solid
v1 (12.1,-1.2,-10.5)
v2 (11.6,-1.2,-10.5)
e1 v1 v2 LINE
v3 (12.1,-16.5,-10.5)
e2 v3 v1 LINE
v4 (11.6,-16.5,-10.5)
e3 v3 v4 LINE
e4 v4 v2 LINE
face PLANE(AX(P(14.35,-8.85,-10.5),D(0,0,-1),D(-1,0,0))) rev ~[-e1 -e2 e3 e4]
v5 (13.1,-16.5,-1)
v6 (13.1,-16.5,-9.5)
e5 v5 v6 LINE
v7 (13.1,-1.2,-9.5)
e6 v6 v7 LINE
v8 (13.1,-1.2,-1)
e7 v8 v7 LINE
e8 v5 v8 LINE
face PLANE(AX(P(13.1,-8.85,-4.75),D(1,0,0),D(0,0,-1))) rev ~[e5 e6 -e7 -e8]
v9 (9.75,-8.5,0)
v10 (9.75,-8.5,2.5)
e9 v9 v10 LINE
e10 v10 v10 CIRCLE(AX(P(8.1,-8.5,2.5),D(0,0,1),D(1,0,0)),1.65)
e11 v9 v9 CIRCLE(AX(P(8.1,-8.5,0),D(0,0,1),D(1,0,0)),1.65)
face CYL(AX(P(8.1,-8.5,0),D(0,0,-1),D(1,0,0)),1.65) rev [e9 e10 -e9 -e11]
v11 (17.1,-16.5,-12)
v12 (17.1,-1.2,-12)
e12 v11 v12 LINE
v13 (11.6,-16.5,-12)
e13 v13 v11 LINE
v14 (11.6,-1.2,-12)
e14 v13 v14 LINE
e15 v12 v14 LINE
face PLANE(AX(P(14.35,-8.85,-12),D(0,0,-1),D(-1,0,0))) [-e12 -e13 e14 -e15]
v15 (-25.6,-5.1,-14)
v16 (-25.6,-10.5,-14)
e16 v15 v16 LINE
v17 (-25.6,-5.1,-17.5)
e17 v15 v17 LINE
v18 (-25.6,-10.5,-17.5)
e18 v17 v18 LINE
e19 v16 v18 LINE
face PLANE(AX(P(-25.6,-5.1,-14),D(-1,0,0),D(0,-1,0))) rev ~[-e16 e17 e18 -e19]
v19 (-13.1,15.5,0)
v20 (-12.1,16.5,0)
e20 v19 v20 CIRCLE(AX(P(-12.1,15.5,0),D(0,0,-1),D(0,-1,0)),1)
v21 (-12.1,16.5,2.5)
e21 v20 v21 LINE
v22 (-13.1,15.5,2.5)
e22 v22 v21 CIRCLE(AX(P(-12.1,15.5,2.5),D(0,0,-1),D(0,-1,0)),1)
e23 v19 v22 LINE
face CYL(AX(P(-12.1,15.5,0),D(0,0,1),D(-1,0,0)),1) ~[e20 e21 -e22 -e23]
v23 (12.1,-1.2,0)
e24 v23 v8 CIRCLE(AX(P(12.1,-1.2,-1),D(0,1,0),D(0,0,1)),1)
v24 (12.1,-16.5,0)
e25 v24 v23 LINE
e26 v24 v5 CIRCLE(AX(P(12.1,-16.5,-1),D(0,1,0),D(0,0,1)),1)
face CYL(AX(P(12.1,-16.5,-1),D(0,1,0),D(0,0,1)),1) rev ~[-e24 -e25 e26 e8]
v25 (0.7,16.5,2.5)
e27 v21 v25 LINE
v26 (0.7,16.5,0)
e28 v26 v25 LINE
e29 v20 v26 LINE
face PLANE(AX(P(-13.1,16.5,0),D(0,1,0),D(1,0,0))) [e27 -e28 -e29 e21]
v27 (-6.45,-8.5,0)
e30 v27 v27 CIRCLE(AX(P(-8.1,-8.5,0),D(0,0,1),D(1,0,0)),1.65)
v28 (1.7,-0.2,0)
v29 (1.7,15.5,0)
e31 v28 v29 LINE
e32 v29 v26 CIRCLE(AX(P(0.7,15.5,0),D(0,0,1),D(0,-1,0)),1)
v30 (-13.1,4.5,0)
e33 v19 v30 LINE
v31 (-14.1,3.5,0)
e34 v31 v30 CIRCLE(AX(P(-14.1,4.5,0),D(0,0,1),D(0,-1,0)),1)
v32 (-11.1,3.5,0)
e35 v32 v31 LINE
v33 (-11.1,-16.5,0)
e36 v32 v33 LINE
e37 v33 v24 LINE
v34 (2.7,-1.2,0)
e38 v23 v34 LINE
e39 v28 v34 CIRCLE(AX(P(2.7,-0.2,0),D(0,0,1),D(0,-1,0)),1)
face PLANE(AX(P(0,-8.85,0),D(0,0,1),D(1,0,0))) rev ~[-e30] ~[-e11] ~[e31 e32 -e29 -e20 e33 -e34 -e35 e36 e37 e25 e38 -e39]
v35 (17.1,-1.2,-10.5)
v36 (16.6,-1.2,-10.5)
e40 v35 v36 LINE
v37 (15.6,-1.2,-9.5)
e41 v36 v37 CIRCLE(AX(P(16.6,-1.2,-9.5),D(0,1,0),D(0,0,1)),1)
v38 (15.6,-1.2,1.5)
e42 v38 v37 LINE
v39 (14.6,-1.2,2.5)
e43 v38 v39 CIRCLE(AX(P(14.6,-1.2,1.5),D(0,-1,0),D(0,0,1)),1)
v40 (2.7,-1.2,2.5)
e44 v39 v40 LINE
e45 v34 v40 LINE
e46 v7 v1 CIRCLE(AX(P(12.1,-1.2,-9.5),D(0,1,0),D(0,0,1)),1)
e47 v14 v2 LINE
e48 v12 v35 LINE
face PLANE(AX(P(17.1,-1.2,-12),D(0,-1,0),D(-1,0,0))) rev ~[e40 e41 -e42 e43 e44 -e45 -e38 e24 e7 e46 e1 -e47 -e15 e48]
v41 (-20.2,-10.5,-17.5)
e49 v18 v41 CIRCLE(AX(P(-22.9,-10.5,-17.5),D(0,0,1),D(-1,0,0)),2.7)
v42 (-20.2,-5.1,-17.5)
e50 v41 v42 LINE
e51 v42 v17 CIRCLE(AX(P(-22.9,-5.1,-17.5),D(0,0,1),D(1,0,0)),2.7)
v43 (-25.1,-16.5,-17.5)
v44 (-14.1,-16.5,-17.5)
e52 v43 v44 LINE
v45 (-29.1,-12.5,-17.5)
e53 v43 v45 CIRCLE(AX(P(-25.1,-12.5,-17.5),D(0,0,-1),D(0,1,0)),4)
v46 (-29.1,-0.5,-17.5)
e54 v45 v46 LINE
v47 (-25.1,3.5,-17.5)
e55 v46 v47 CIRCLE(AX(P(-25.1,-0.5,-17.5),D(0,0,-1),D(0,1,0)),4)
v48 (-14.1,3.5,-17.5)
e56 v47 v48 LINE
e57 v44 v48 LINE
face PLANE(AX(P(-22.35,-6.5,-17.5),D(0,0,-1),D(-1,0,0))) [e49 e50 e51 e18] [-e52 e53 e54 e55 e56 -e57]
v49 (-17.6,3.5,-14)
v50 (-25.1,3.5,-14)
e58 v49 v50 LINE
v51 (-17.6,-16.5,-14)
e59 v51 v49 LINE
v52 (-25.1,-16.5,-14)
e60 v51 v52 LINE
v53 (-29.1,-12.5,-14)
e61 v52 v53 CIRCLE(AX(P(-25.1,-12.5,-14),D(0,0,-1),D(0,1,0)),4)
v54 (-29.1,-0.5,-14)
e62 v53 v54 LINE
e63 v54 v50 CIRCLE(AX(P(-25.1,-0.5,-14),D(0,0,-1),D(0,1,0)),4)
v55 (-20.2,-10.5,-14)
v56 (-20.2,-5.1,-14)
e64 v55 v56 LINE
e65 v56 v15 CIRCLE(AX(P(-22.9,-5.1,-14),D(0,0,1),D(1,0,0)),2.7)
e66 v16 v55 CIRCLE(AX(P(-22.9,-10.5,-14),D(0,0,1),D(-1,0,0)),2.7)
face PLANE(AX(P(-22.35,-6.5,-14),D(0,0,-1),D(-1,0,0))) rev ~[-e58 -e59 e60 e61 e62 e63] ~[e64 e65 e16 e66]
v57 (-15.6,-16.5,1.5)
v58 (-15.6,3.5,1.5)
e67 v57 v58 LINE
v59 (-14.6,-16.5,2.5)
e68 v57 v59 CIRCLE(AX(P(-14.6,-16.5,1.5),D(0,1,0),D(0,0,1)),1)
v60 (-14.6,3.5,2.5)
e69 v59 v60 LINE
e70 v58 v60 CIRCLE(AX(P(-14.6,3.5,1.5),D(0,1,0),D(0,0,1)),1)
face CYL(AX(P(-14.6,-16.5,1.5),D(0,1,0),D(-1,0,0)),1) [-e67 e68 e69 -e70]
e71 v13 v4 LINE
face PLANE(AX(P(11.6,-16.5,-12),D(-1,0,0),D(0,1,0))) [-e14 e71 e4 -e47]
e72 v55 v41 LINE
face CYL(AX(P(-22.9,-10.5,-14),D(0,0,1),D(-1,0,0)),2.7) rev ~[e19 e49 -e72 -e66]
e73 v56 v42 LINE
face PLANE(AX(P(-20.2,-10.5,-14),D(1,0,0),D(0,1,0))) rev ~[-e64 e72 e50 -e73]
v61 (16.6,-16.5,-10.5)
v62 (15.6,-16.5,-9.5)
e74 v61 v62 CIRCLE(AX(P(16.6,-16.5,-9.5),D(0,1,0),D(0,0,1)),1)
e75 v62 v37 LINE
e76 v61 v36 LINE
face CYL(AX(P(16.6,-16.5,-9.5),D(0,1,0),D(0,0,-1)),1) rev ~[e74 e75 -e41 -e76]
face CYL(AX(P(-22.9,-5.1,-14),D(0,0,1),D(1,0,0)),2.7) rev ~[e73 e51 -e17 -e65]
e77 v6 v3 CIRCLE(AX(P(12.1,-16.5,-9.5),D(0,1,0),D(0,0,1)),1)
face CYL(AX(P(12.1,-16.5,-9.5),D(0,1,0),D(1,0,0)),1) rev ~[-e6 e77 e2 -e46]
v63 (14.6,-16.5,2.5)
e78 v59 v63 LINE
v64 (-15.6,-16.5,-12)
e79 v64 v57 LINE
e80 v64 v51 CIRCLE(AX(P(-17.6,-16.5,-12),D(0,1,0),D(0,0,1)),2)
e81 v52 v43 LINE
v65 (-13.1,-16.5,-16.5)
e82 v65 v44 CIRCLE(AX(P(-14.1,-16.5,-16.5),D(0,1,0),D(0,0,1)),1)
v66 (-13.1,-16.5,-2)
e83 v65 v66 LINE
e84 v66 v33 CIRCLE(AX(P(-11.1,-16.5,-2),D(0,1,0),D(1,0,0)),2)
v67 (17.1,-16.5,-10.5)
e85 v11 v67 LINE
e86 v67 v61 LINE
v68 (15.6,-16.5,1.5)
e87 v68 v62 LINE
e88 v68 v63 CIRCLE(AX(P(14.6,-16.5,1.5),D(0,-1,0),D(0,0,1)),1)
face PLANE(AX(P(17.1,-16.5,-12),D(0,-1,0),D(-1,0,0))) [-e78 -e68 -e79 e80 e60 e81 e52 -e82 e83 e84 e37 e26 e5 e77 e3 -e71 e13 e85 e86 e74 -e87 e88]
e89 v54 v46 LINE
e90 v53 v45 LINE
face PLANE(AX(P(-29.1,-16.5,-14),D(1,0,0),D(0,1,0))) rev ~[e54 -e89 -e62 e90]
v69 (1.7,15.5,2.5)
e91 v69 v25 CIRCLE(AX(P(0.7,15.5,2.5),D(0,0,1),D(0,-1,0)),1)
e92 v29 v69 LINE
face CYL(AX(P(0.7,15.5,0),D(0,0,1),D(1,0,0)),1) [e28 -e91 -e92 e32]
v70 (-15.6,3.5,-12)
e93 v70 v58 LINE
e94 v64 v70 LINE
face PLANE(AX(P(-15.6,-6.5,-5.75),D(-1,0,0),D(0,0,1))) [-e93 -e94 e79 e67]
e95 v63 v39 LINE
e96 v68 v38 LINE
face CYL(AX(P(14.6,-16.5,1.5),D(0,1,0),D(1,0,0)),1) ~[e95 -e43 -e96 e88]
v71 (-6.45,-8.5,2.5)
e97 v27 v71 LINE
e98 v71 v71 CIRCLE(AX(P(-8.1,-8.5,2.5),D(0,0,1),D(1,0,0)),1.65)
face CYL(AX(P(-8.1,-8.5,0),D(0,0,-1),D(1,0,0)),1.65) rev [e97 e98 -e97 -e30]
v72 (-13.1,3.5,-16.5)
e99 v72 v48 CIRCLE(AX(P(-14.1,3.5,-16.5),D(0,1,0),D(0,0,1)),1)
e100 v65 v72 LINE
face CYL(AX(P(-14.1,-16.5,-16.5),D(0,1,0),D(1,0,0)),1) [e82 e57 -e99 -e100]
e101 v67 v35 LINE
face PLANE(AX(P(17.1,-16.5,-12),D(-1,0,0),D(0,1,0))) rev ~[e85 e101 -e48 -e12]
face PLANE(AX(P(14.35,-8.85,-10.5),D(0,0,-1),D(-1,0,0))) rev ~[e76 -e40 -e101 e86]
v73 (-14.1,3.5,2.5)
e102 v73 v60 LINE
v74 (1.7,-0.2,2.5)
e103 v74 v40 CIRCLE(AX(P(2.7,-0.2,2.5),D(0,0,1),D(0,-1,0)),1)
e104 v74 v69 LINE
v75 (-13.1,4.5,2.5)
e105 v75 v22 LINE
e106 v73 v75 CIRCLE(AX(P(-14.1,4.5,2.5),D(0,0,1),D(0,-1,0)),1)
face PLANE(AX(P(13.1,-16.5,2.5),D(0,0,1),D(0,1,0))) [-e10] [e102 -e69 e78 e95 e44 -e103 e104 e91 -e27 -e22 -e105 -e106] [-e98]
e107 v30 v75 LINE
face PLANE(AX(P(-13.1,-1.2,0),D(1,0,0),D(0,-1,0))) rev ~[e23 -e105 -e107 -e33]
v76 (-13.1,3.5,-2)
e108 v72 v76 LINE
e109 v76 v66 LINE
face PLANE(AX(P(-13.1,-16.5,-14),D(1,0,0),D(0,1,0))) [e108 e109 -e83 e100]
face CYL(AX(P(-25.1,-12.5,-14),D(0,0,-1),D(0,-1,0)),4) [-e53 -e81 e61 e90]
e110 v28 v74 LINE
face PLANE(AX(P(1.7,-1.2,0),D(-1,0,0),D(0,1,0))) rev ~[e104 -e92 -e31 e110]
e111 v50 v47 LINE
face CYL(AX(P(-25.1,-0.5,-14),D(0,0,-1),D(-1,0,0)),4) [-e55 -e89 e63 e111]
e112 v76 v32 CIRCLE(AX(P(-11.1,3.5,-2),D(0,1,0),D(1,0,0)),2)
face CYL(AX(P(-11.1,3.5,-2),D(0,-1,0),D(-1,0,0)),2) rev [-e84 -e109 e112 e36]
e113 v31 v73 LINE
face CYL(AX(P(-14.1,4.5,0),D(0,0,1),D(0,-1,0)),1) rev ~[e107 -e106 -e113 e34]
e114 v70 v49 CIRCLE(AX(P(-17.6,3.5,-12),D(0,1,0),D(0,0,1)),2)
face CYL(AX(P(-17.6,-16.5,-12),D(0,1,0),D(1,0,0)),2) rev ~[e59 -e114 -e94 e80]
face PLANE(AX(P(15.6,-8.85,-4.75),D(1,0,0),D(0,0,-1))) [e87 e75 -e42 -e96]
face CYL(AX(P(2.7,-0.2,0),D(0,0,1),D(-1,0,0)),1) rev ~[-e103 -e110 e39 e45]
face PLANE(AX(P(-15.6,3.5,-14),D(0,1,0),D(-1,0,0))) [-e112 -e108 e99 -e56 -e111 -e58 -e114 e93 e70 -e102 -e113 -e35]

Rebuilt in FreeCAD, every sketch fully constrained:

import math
import FreeCAD as App
import Part
import Sketcher
from FreeCAD import Vector
Q = App.Units.Quantity


def edges_at(feature, points):
    """Names of the edges that pass closest to the given points."""
    edges = feature.Shape.Edges
    near = lambda p: min(range(len(edges)), key=lambda i: edges[i].distToShape(Part.Vertex(*p))[0])
    return sorted({f"Edge{near(p) + 1}" for p in points})


def add_polygon(sketch, points):
    """Adds a closed chain of lines whose ends are joined by coincident constraints."""
    first, n = sketch.GeometryCount, len(points)
    for a, b in zip(points, points[1:] + points[:1]):
        sketch.addGeometry(Part.LineSegment(App.Vector(*a, 0), App.Vector(*b, 0)), False)
    for i in range(n):
        sketch.addConstraint(Sketcher.Constraint("Coincident", first + i, 2, first + (i + 1) % n, 1))

doc = App.newDocument("Part")
params = doc.addObject("Spreadsheet::Sheet", "Params")
for row, (alias, value) in enumerate([
    ("sketch1_diameter", "3.3 mm"),
    ("sketch1_height", "33 mm"),
    ("sketch1_width", "26.2 mm"),
    ("sketch1_width2", "11.4 mm"),
    ("sketch1_height2", "15.3 mm"),
    ("pad1_length", "2.5 mm"),
    ("fillet_radius", "1 mm"),
    ("sketch2_width", "20 mm"),
    ("sketch2_height", "16.5 mm"),
    ("pad2_length", "2.5 mm"),
    ("sketch3_radius", "2.7 mm"),
    ("sketch3_width", "16 mm"),
    ("sketch3_height", "20 mm"),
    ("sketch3_height2", "5.4 mm"),
    ("pad3_length", "3.5 mm"),
    ("fillet2_radius", "2 mm"),
    ("fillet3_radius", "1 mm"),
    ("sketch4_width", "15.3 mm"),
    ("sketch4_height", "14.5 mm"),
    ("pad4_length", "2.5 mm"),
    ("sketch5_width", "5.5 mm"),
    ("sketch5_height", "15.3 mm"),
    ("pad5_length", "1.5 mm"),
    ("fillet4_radius", "1 mm"),
    ("fillet5_radius", "4 mm"),
], start=1):
    params.set(f"A{row}", alias)
    params.set(f"B{row}", "=" + value)
    params.setAlias(f"B{row}", alias)

body = doc.addObject("PartDesign::Body", "Body")

# Sketch on XY plane
sketch1 = doc.addObject("Sketcher::SketchObject", "Sketch")
body.addObject(sketch1)
sketch1.AttachmentSupport = (doc.XY_Plane, [""])
sketch1.MapMode = "FlatFace"
add_polygon(sketch1, [(-13.1, 16.5), (-13.1, -16.5), (13.1, -16.5), (13.1, -1.2), (1.7, -1.2), (1.7, 16.5)])  # lines 0-5
sketch1.addGeometry(Part.Circle(Vector(8.1, -8.5, 0), Vector(0, 0, 1), 1.6), False)  # 6
sketch1.addGeometry(Part.Circle(Vector(-8.1, -8.5, 0), Vector(0, 0, 1), 1.6), False)  # 7
sketch1.addConstraint(Sketcher.Constraint("Vertical", 0))
sketch1.addConstraint(Sketcher.Constraint("Horizontal", 1))
sketch1.addConstraint(Sketcher.Constraint("Vertical", 2))
sketch1.addConstraint(Sketcher.Constraint("Horizontal", 3))
sketch1.addConstraint(Sketcher.Constraint("Vertical", 4))
sketch1.addConstraint(Sketcher.Constraint("Horizontal", 5))
sketch1.addConstraint(Sketcher.Constraint("Equal", 6, 7))
sketch1.addConstraint(Sketcher.Constraint("Symmetric", 1, 2, 5, 2, -1, 1))
sketch1.addConstraint(Sketcher.Constraint("Symmetric", 6, 3, 7, 3, -2))
sketch1.addConstraint(Sketcher.Constraint("Diameter", 6, Q("3.3 mm")))
sketch1.addConstraint(Sketcher.Constraint("DistanceY", 0, 2, 0, 1, Q("33 mm")))
sketch1.addConstraint(Sketcher.Constraint("DistanceX", 1, 1, 1, 2, Q("26.2 mm")))
sketch1.addConstraint(Sketcher.Constraint("DistanceX", 3, 2, 3, 1, Q("11.4 mm")))
sketch1.addConstraint(Sketcher.Constraint("DistanceY", 2, 1, 2, 2, Q("15.3 mm")))
sketch1.addConstraint(Sketcher.Constraint("DistanceX", 0, 2, 7, 3, Q("5 mm")))
sketch1.addConstraint(Sketcher.Constraint("DistanceY", 0, 2, 7, 3, Q("8 mm")))
sketch1.setExpression("Constraints[15]", "Params.sketch1_diameter")
sketch1.setExpression("Constraints[16]", "Params.sketch1_height")
sketch1.setExpression("Constraints[17]", "Params.sketch1_width")
sketch1.setExpression("Constraints[18]", "Params.sketch1_width2")
sketch1.setExpression("Constraints[19]", "Params.sketch1_height2")
pad1 = doc.addObject("PartDesign::Pad", "Pad")
body.addObject(pad1)
pad1.Profile = sketch1
pad1.setExpression("Length", "Params.pad1_length")
doc.recompute()

fillet = doc.addObject("PartDesign::Fillet", "Fillet")
body.addObject(fillet)
fillet.Base = (pad1, edges_at(pad1, [(1.7, 16.5, 1.25), (-13.1, 16.5, 1.25)]))
fillet.setExpression("Radius", "Params.fillet_radius")

# Sketch on YZ plane
sketch2 = doc.addObject("Sketcher::SketchObject", "Sketch001")
body.addObject(sketch2)
sketch2.AttachmentSupport = (doc.YZ_Plane, [""])
sketch2.MapMode = "FlatFace"
sketch2.AttachmentOffset = App.Placement(Vector(0, 0, -13.1), App.Rotation())
add_polygon(sketch2, [(4, -14), (-16, -14), (-16, 2), (4, 2)])  # lines 0-3
sketch2.addConstraint(Sketcher.Constraint("Horizontal", 0))
sketch2.addConstraint(Sketcher.Constraint("Vertical", 1))
sketch2.addConstraint(Sketcher.Constraint("Horizontal", 2))
sketch2.addConstraint(Sketcher.Constraint("Vertical", 3))
sketch2.addConstraint(Sketcher.Constraint("DistanceX", 0, 2, 0, 1, Q("20 mm")))
sketch2.addConstraint(Sketcher.Constraint("DistanceY", 1, 1, 1, 2, Q("16.5 mm")))
sketch2.addConstraint(Sketcher.Constraint("DistanceY", 0, 2, -1, 1, Q("14 mm")))
sketch2.addConstraint(Sketcher.Constraint("DistanceX", 0, 2, -1, 1, Q("16.5 mm")))
sketch2.setExpression("Constraints[8]", "Params.sketch2_width")
sketch2.setExpression("Constraints[9]", "Params.sketch2_height")
pad2 = doc.addObject("PartDesign::Pad", "Pad001")
body.addObject(pad2)
pad2.Profile = sketch2
pad2.setExpression("Length", "Params.pad2_length")
pad2.Reversed = True

# Sketch on XY plane
sketch3 = doc.addObject("Sketcher::SketchObject", "Sketch002")
body.addObject(sketch3)
sketch3.AttachmentSupport = (doc.XY_Plane, [""])
sketch3.MapMode = "FlatFace"
sketch3.AttachmentOffset = App.Placement(Vector(0, 0, -14), App.Rotation())
add_polygon(sketch3, [(-29.1, -16.5), (-29.1, 3.5), (-13.1, 3.5), (-13.1, -16.5)])  # lines 0-3
sketch3.addGeometry(Part.LineSegment(Vector(-20.2, -10.5, 0), Vector(-20.2, -5.1, 0)), False)  # 4
sketch3.addGeometry(Part.ArcOfCircle(Part.Circle(Vector(-22.9, -5.1, 0), Vector(0, 0, 1), 2.7), math.radians(0), math.radians(180)), False)  # 5
sketch3.addGeometry(Part.LineSegment(Vector(-25.6, -5.1, 0), Vector(-25.6, -10.5, 0)), False)  # 6
sketch3.addGeometry(Part.ArcOfCircle(Part.Circle(Vector(-22.9, -10.5, 0), Vector(0, 0, 1), 2.7), math.radians(180), math.radians(360)), False)  # 7
sketch3.addConstraint(Sketcher.Constraint("Tangent", 4, 2, 5, 1))
sketch3.addConstraint(Sketcher.Constraint("Tangent", 5, 2, 6, 1))
sketch3.addConstraint(Sketcher.Constraint("Tangent", 6, 2, 7, 1))
sketch3.addConstraint(Sketcher.Constraint("Tangent", 7, 2, 4, 1))
sketch3.addConstraint(Sketcher.Constraint("Vertical", 0))
sketch3.addConstraint(Sketcher.Constraint("Horizontal", 1))
sketch3.addConstraint(Sketcher.Constraint("Vertical", 2))
sketch3.addConstraint(Sketcher.Constraint("Horizontal", 3))
sketch3.addConstraint(Sketcher.Constraint("Vertical", 4))
sketch3.addConstraint(Sketcher.Constraint("Vertical", 6))
sketch3.addConstraint(Sketcher.Constraint("Radius", 5, Q("2.7 mm")))
sketch3.addConstraint(Sketcher.Constraint("DistanceX", 1, 1, 1, 2, Q("16 mm")))
sketch3.addConstraint(Sketcher.Constraint("DistanceY", 0, 1, 0, 2, Q("20 mm")))
sketch3.addConstraint(Sketcher.Constraint("DistanceY", 4, 1, 4, 2, Q("5.4 mm")))
sketch3.addConstraint(Sketcher.Constraint("DistanceY", 7, 3, 0, 2, Q("14 mm")))
sketch3.addConstraint(Sketcher.Constraint("DistanceX", 5, 3, -1, 1, Q("22.9 mm")))
sketch3.addConstraint(Sketcher.Constraint("DistanceY", 5, 3, -1, 1, Q("5.1 mm")))
sketch3.addConstraint(Sketcher.Constraint("DistanceX", 0, 2, -1, 1, Q("29.1 mm")))
sketch3.setExpression("Constraints[14]", "Params.sketch3_radius")
sketch3.setExpression("Constraints[15]", "Params.sketch3_width")
sketch3.setExpression("Constraints[16]", "Params.sketch3_height")
sketch3.setExpression("Constraints[17]", "Params.sketch3_height2")
pad3 = doc.addObject("PartDesign::Pad", "Pad002")
body.addObject(pad3)
pad3.Profile = sketch3
pad3.setExpression("Length", "Params.pad3_length")
pad3.Reversed = True
doc.recompute()

fillet2 = doc.addObject("PartDesign::Fillet", "Fillet001")
body.addObject(fillet2)
fillet2.Base = (pad3, edges_at(pad3, [(-13.1, -6.5, 0), (-15.6, -6.5, -14)]))
fillet2.setExpression("Radius", "Params.fillet2_radius")
doc.recompute()

fillet3 = doc.addObject("PartDesign::Fillet", "Fillet002")
body.addObject(fillet3)
fillet3.Base = (fillet2, edges_at(fillet2, [(-13.1, 3.5, 1.25), (-15.6, -6.5, 2.5)]))
fillet3.setExpression("Radius", "Params.fillet3_radius")

# Sketch on YZ plane
sketch4 = doc.addObject("Sketcher::SketchObject", "Sketch003")
body.addObject(sketch4)
sketch4.AttachmentSupport = (doc.YZ_Plane, [""])
sketch4.MapMode = "FlatFace"
sketch4.AttachmentOffset = App.Placement(Vector(0, 0, 13.1), App.Rotation())
add_polygon(sketch4, [(-1, 2), (-16, 2), (-16, -12), (-1, -12)])  # lines 0-3
sketch4.addConstraint(Sketcher.Constraint("Horizontal", 0))
sketch4.addConstraint(Sketcher.Constraint("Vertical", 1))
sketch4.addConstraint(Sketcher.Constraint("Horizontal", 2))
sketch4.addConstraint(Sketcher.Constraint("Vertical", 3))
sketch4.addConstraint(Sketcher.Constraint("DistanceX", 0, 2, 0, 1, Q("15.3 mm")))
sketch4.addConstraint(Sketcher.Constraint("DistanceY", 1, 2, 1, 1, Q("14.5 mm")))
sketch4.addConstraint(Sketcher.Constraint("DistanceY", 1, 2, -1, 1, Q("12 mm")))
sketch4.addConstraint(Sketcher.Constraint("DistanceX", 0, 2, -1, 1, Q("16.5 mm")))
sketch4.setExpression("Constraints[8]", "Params.sketch4_width")
sketch4.setExpression("Constraints[9]", "Params.sketch4_height")
pad4 = doc.addObject("PartDesign::Pad", "Pad003")
body.addObject(pad4)
pad4.Profile = sketch4
pad4.setExpression("Length", "Params.pad4_length")

# Sketch on XY plane
sketch5 = doc.addObject("Sketcher::SketchObject", "Sketch004")
body.addObject(sketch5)
sketch5.AttachmentSupport = (doc.XY_Plane, [""])
sketch5.MapMode = "FlatFace"
sketch5.AttachmentOffset = App.Placement(Vector(0, 0, -12), App.Rotation())
add_polygon(sketch5, [(17, -1), (17, -16), (12, -16), (12, -1)])  # lines 0-3
sketch5.addConstraint(Sketcher.Constraint("Vertical", 0))
sketch5.addConstraint(Sketcher.Constraint("Horizontal", 1))
sketch5.addConstraint(Sketcher.Constraint("Vertical", 2))
sketch5.addConstraint(Sketcher.Constraint("Horizontal", 3))
sketch5.addConstraint(Sketcher.Constraint("DistanceX", 1, 2, 1, 1, Q("5.5 mm")))
sketch5.addConstraint(Sketcher.Constraint("DistanceY", 0, 2, 0, 1, Q("15.3 mm")))
sketch5.addConstraint(Sketcher.Constraint("DistanceX", -1, 1, 0, 2, Q("17.1 mm")))
sketch5.addConstraint(Sketcher.Constraint("DistanceY", 0, 2, -1, 1, Q("16.5 mm")))
sketch5.setExpression("Constraints[8]", "Params.sketch5_width")
sketch5.setExpression("Constraints[9]", "Params.sketch5_height")
pad5 = doc.addObject("PartDesign::Pad", "Pad004")
body.addObject(pad5)
pad5.Profile = sketch5
pad5.setExpression("Length", "Params.pad5_length")
doc.recompute()

fillet4 = doc.addObject("PartDesign::Fillet", "Fillet003")
body.addObject(fillet4)
fillet4.Base = (pad5, edges_at(pad5, [
    (13.1, -8.85, 0),
    (15.6, -8.85, 2.5),
    (15.6, -8.85, -10.5),
    (13.1, -8.85, -10.5),
    (1.7, -1.2, 1.25),
    (-13.1, -6.5, -17.5),
]))
fillet4.setExpression("Radius", "Params.fillet4_radius")
doc.recompute()

fillet5 = doc.addObject("PartDesign::Fillet", "Fillet004")
body.addObject(fillet5)
fillet5.Base = (fillet4, edges_at(fillet4, [(-29.1, -16.5, -15.75), (-29.1, 3.5, -15.75)]))
fillet5.setExpression("Radius", "Params.fillet5_radius")

doc.recompute()
